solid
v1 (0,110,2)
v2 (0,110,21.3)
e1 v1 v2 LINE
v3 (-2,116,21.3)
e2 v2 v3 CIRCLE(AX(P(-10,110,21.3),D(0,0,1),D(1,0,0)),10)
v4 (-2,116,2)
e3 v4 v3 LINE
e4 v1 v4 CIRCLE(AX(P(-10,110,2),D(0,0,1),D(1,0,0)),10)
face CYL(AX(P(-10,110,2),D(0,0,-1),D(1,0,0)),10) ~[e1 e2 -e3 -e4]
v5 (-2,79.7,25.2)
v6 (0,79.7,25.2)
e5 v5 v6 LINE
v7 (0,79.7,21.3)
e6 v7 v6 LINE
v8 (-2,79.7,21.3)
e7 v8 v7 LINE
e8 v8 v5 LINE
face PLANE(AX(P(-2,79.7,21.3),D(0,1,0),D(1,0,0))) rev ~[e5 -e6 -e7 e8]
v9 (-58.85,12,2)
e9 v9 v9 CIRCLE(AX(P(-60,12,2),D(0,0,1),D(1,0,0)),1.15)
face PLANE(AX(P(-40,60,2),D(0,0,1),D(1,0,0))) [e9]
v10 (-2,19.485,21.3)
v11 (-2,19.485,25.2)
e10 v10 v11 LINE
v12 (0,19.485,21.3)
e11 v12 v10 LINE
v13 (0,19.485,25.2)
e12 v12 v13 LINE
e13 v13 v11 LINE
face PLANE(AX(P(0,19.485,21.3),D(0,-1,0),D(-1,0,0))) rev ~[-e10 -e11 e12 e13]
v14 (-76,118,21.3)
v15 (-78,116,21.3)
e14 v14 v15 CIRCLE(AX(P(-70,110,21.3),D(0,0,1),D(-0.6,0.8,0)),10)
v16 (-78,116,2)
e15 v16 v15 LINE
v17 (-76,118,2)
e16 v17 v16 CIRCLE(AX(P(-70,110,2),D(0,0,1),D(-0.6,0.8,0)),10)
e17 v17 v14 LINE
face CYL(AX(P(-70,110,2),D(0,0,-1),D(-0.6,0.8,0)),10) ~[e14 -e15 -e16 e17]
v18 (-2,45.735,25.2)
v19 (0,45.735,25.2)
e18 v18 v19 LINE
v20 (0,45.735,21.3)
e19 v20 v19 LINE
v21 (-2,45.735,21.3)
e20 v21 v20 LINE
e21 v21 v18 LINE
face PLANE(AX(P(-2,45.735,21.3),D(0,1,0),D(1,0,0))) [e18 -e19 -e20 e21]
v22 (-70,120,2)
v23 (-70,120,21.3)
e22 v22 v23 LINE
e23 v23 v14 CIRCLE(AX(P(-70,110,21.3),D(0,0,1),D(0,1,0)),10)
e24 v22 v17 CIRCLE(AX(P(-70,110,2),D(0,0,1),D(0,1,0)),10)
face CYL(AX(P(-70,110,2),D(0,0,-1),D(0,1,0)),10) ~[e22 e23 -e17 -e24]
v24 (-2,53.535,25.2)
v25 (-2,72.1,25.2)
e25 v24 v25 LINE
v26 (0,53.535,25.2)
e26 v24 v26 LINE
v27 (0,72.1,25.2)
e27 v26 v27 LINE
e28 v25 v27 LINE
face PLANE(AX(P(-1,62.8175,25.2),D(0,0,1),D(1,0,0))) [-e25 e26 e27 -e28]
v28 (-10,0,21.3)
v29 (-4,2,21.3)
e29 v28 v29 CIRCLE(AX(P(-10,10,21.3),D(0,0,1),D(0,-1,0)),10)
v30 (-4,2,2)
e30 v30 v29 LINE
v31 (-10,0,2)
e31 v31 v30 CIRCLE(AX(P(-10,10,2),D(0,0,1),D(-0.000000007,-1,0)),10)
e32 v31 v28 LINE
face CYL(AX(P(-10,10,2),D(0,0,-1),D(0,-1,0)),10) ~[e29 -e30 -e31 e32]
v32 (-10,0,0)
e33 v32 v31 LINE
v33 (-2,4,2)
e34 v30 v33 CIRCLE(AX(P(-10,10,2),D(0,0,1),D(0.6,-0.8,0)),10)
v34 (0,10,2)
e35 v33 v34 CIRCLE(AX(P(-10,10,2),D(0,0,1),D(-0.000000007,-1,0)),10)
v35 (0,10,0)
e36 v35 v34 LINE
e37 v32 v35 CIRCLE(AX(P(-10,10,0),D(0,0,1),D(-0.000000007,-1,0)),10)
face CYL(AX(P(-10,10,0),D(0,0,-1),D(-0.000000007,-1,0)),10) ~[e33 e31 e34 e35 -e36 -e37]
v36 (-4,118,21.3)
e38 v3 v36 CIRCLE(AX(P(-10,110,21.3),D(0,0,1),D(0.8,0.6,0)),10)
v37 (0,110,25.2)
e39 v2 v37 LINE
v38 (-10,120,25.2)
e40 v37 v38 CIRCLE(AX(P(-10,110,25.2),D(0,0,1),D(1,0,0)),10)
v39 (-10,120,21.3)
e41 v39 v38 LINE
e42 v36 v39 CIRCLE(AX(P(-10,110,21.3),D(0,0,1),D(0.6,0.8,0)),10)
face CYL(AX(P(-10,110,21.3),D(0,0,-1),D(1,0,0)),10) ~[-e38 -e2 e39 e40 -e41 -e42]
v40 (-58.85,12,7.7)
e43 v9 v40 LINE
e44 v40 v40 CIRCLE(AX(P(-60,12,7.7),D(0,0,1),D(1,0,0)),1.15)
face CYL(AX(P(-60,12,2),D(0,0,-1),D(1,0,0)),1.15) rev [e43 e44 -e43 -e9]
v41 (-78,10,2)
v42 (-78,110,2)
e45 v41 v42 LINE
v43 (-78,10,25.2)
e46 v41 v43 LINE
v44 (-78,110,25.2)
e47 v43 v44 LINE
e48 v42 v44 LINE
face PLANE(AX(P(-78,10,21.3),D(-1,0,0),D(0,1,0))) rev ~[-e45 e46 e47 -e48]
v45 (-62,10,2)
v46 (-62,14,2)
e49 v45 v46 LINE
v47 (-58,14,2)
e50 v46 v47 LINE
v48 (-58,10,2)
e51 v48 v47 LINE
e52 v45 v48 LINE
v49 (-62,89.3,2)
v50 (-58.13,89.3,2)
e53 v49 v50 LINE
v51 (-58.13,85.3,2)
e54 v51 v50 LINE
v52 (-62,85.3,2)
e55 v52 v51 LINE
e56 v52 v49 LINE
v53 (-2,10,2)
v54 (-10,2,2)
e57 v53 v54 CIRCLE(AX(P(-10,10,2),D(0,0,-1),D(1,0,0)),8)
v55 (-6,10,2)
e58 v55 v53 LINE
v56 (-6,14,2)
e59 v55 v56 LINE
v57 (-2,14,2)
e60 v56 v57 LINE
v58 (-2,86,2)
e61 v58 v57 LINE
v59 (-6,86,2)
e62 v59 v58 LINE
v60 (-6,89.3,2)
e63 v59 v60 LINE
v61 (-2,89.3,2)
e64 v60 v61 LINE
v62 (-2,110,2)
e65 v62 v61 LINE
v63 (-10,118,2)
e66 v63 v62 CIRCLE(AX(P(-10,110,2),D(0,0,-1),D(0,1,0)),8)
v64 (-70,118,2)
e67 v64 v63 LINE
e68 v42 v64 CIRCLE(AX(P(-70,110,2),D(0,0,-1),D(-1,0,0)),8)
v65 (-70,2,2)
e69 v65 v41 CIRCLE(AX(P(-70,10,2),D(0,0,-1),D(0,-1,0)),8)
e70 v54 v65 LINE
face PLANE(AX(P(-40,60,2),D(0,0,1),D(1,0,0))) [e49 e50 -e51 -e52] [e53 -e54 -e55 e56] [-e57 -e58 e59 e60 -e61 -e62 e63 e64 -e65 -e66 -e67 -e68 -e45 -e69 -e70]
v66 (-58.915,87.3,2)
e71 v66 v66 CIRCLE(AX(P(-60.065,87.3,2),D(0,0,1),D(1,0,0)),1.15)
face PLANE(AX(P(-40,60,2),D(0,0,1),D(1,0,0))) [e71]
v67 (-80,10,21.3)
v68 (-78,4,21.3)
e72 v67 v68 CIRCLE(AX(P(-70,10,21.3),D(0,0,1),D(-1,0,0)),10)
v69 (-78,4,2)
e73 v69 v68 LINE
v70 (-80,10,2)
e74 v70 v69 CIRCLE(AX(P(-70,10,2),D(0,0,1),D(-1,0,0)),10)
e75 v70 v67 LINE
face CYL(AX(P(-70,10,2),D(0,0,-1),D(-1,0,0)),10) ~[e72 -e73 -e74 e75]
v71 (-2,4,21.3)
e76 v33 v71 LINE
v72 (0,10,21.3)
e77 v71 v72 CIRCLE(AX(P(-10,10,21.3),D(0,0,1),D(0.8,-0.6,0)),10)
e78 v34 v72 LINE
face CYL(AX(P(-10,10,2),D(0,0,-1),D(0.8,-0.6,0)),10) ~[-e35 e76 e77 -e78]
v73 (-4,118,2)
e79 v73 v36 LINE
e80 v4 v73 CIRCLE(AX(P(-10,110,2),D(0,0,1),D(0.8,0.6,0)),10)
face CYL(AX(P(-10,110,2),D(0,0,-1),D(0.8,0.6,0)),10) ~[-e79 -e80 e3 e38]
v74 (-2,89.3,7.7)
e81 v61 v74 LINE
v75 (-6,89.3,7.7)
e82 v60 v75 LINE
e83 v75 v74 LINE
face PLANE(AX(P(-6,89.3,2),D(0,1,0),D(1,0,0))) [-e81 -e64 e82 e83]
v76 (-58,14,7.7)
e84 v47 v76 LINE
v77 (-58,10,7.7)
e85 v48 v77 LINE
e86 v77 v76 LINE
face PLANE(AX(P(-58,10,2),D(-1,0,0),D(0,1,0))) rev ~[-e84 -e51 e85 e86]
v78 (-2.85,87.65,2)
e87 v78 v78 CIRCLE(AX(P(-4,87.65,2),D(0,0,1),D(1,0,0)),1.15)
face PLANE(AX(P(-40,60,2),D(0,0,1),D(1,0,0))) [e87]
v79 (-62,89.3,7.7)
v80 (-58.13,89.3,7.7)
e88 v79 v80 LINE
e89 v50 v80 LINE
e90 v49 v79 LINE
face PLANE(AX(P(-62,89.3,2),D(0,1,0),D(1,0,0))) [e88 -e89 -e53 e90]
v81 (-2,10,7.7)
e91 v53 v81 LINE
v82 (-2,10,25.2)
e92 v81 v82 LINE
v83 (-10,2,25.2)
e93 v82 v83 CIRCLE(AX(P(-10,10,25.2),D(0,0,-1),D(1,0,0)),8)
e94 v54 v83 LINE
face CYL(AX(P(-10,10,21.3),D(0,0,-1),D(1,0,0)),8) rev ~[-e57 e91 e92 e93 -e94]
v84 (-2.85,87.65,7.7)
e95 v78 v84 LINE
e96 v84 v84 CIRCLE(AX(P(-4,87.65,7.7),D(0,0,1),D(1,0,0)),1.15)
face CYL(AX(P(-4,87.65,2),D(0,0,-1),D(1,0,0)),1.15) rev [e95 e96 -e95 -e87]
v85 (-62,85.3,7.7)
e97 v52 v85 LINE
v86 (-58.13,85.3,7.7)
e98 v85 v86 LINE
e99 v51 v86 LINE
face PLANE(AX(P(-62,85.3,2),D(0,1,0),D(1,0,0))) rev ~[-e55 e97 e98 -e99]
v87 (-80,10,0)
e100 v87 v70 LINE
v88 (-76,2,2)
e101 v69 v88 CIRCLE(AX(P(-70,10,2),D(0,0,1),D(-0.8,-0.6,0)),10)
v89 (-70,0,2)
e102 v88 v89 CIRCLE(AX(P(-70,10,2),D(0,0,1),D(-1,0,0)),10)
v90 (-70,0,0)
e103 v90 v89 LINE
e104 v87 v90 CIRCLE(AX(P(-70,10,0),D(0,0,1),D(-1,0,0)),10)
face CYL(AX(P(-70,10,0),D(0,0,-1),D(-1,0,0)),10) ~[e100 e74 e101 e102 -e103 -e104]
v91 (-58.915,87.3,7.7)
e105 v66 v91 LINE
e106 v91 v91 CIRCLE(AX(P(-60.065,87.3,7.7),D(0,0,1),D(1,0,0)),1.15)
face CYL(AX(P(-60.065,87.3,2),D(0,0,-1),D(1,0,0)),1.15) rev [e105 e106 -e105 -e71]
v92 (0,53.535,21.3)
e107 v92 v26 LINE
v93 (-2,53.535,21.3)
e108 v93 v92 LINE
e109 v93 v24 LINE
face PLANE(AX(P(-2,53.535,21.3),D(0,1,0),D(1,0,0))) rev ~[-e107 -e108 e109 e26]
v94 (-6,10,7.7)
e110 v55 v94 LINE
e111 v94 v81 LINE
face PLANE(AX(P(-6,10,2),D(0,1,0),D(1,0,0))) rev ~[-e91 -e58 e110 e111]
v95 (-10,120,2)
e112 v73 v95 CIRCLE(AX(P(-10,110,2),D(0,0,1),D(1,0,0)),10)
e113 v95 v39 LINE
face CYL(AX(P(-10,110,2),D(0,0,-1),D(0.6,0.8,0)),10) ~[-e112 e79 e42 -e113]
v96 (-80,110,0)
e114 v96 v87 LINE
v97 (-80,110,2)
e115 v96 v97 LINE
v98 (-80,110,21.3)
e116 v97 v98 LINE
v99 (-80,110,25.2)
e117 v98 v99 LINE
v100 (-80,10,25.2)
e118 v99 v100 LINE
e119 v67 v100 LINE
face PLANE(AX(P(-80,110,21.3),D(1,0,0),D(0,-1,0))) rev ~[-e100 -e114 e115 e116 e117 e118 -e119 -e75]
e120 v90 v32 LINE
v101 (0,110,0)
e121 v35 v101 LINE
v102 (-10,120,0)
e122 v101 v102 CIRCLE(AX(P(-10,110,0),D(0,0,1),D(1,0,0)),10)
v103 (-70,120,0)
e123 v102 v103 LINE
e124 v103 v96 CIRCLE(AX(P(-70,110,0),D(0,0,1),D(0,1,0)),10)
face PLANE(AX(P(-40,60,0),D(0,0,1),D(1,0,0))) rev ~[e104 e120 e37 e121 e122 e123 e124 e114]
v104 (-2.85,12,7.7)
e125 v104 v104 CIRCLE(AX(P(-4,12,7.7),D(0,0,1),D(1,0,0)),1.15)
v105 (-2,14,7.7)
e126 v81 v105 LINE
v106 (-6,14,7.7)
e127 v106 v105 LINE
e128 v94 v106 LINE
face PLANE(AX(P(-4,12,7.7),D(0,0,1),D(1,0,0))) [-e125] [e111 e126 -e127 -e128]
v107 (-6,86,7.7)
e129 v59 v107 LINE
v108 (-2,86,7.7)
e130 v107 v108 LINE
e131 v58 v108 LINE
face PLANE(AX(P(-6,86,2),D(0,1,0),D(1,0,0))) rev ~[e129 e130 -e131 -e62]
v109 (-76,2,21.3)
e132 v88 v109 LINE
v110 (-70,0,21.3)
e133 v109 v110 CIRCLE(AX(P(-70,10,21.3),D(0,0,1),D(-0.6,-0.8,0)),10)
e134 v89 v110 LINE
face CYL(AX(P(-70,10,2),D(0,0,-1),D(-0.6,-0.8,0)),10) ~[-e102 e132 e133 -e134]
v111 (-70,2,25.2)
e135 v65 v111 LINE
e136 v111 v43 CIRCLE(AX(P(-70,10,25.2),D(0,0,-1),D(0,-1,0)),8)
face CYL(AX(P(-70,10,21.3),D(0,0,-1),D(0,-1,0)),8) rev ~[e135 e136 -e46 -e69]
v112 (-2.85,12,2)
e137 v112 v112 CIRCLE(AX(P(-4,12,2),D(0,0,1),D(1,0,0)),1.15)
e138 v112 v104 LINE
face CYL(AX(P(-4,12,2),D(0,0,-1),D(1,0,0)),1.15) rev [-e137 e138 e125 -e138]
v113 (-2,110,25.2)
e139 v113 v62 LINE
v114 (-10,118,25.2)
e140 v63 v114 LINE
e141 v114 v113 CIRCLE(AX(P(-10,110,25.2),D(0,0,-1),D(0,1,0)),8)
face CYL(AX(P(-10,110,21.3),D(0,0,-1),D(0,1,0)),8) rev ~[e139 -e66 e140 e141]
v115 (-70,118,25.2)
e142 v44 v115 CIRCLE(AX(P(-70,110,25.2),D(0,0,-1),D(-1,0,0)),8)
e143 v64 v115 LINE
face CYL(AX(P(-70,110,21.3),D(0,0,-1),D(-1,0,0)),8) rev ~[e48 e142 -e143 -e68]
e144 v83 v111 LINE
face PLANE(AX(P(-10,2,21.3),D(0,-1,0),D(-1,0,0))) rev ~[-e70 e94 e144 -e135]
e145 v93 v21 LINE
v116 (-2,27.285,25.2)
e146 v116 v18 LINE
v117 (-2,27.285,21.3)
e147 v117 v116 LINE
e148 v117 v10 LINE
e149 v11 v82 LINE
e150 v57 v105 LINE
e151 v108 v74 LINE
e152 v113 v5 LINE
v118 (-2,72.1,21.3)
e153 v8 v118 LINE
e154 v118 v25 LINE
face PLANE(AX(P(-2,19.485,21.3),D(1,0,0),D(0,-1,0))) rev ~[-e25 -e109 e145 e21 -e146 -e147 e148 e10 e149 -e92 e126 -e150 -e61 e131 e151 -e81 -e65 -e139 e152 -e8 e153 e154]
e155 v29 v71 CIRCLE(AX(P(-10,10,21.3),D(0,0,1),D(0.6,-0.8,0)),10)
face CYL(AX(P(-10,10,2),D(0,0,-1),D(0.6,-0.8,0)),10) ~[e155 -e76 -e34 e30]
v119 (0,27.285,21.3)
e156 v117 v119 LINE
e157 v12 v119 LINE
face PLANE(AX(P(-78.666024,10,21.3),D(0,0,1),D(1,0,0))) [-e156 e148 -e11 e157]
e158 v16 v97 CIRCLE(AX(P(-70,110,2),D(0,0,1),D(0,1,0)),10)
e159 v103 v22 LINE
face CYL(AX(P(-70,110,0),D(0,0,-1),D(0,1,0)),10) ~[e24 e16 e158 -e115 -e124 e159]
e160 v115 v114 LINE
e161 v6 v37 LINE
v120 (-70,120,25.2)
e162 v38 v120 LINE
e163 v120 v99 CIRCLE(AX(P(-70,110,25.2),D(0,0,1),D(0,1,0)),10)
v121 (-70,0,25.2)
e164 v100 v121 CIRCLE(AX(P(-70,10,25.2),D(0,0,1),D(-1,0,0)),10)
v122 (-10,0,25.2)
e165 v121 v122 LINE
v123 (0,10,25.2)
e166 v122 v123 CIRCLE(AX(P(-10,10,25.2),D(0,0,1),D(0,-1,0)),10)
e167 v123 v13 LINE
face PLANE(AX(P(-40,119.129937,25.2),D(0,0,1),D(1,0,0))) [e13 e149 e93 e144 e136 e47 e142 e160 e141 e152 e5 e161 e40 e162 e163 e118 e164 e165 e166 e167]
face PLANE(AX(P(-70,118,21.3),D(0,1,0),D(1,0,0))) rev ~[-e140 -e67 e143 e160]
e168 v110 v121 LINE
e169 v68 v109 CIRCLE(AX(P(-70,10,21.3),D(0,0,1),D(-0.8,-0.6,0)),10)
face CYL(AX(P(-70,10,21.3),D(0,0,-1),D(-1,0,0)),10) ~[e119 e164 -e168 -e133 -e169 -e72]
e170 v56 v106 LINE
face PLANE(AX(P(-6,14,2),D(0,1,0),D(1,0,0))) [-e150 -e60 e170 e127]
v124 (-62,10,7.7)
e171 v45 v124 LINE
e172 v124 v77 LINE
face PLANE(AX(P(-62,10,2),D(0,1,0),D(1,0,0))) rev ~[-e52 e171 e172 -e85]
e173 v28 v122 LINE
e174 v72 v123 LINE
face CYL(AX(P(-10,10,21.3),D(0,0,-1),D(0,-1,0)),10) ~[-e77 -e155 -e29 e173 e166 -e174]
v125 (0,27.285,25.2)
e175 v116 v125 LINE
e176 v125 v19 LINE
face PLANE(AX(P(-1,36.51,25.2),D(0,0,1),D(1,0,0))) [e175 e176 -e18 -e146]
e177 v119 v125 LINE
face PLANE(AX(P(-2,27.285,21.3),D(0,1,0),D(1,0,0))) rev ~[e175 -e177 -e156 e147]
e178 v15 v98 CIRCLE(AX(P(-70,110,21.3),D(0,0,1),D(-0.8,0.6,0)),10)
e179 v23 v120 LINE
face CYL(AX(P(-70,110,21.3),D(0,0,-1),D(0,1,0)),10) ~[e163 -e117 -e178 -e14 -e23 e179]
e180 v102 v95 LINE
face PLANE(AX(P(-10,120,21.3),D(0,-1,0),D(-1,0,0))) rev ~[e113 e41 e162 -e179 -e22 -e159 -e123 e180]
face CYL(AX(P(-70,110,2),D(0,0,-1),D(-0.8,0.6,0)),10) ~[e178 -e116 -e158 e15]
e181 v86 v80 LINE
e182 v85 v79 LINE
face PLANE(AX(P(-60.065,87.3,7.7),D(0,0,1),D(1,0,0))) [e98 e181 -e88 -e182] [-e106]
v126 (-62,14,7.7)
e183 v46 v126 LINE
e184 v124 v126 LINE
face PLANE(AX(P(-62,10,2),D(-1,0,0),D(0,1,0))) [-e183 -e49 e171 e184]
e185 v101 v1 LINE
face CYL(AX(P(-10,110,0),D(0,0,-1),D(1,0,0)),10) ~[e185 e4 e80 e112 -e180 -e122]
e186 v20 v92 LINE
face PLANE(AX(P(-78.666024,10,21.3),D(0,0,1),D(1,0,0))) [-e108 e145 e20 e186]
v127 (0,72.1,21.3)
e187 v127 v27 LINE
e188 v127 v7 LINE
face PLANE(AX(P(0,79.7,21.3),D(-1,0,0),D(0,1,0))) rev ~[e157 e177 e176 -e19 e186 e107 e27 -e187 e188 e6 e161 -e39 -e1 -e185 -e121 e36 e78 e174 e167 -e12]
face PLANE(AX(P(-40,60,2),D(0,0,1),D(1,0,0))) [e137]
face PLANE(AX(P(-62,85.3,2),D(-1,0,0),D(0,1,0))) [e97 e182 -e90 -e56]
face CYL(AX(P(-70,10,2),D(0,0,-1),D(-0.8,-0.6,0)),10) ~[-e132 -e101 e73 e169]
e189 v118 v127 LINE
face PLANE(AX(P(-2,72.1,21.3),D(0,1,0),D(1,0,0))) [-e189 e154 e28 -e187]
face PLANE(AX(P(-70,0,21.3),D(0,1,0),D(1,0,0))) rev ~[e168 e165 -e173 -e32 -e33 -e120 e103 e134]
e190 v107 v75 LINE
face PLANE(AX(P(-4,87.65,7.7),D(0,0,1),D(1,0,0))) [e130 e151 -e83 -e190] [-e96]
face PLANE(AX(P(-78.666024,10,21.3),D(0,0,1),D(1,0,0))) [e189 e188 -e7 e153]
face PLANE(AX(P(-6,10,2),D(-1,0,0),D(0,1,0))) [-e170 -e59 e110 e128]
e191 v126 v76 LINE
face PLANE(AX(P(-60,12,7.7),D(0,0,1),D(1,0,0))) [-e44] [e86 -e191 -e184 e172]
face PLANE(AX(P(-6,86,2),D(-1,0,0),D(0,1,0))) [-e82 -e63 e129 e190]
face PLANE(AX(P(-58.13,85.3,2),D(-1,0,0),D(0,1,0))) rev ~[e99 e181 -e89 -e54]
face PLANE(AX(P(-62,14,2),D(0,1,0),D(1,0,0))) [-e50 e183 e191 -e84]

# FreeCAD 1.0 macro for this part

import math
import FreeCAD as App
import Part
import Sketcher
from FreeCAD import Vector

doc = App.newDocument("Part")
body = doc.addObject("PartDesign::Body", "Body")

sketch1 = doc.addObject("Sketcher::SketchObject", "Sketch")
body.addObject(sketch1)
sketch1.AttachmentSupport = (doc.XY_Plane, [""])
sketch1.MapMode = "FlatFace"
sketch1.addGeometry([
    Part.LineSegment(Vector(-70, 0, 0), Vector(-10, 0, 0)),
    Part.ArcOfCircle(Part.Circle(Vector(-10, 10, 0), Vector(0, 0, 1), 10), math.radians(-90), math.radians(0)),
    Part.LineSegment(Vector(0, 10, 0), Vector(0, 110, 0)),
    Part.ArcOfCircle(Part.Circle(Vector(-10, 110, 0), Vector(0, 0, 1), 10), math.radians(0), math.radians(90)),
    Part.LineSegment(Vector(-10, 120, 0), Vector(-70, 120, 0)),
    Part.ArcOfCircle(Part.Circle(Vector(-70, 110, 0), Vector(0, 0, 1), 10), math.radians(90), math.radians(180)),
    Part.LineSegment(Vector(-80, 110, 0), Vector(-80, 10, 0)),
    Part.ArcOfCircle(Part.Circle(Vector(-70, 10, 0), Vector(0, 0, 1), 10), math.radians(180), math.radians(270)),
], False)
sketch1.addConstraint([
    Sketcher.Constraint("Tangent", 0, 2, 1, 1),
    Sketcher.Constraint("Tangent", 1, 2, 2, 1),
    Sketcher.Constraint("Tangent", 2, 2, 3, 1),
    Sketcher.Constraint("Tangent", 3, 2, 4, 1),
    Sketcher.Constraint("Tangent", 4, 2, 5, 1),
    Sketcher.Constraint("Tangent", 5, 2, 6, 1),
    Sketcher.Constraint("Tangent", 6, 2, 7, 1),
    Sketcher.Constraint("Tangent", 7, 2, 0, 1),
    Sketcher.Constraint("Horizontal", 0),
    Sketcher.Constraint("Vertical", 2),
    Sketcher.Constraint("Horizontal", 4),
    Sketcher.Constraint("Vertical", 6),
    Sketcher.Constraint("Equal", 1, 3),
    Sketcher.Constraint("Equal", 3, 5),
    Sketcher.Constraint("Equal", 5, 7),
    Sketcher.Constraint("PointOnObject", 0, 2, -1),
    Sketcher.Constraint("PointOnObject", 1, 2, -2),
    Sketcher.Constraint("Radius", 1, 10.0),
    Sketcher.Constraint("DistanceX", 0, 1, 0, 2, 60.0),
    Sketcher.Constraint("DistanceY", 2, 1, 2, 2, 100.0),
])
pad1 = doc.addObject("PartDesign::Pad", "Pad")
body.addObject(pad1)
pad1.Profile = sketch1
pad1.Length = 2

sketch2 = doc.addObject("Sketcher::SketchObject", "Sketch001")
body.addObject(sketch2)
sketch2.AttachmentSupport = (doc.XY_Plane, [""])
sketch2.MapMode = "FlatFace"
sketch2.AttachmentOffset = App.Placement(Vector(0, 0, 2), App.Rotation())
sketch2.addGeometry([
    Part.ArcOfCircle(Part.Circle(Vector(-70, 10, 0), Vector(0, 0, 1), 10), math.radians(180), math.radians(217)),
    Part.ArcOfCircle(Part.Circle(Vector(-70, 10, 0), Vector(0, 0, 1), 10), math.radians(-143.13), math.radians(-126.87)),
    Part.ArcOfCircle(Part.Circle(Vector(-70, 10, 0), Vector(0, 0, 1), 10), math.radians(-127), math.radians(-90)),
    Part.LineSegment(Vector(-70, 0, 0), Vector(-10, 0, 0)),
    Part.ArcOfCircle(Part.Circle(Vector(-10, 10, 0), Vector(0, 0, 1), 10), math.radians(-90), math.radians(-53)),
    Part.ArcOfCircle(Part.Circle(Vector(-10, 10, 0), Vector(0, 0, 1), 10), math.radians(-53.13), math.radians(-36.87)),
    Part.ArcOfCircle(Part.Circle(Vector(-10, 10, 0), Vector(0, 0, 1), 10), math.radians(-37), math.radians(0)),
    Part.LineSegment(Vector(0, 10, 0), Vector(0, 110, 0)),
    Part.ArcOfCircle(Part.Circle(Vector(-10, 110, 0), Vector(0, 0, 1), 10), math.radians(0), math.radians(37)),
    Part.ArcOfCircle(Part.Circle(Vector(-10, 110, 0), Vector(0, 0, 1), 10), math.radians(36.87), math.radians(53.13)),
    Part.ArcOfCircle(Part.Circle(Vector(-10, 110, 0), Vector(0, 0, 1), 10), math.radians(53), math.radians(90)),
    Part.LineSegment(Vector(-10, 120, 0), Vector(-70, 120, 0)),
    Part.ArcOfCircle(Part.Circle(Vector(-70, 110, 0), Vector(0, 0, 1), 10), math.radians(90), math.radians(127)),
    Part.ArcOfCircle(Part.Circle(Vector(-70, 110, 0), Vector(0, 0, 1), 10), math.radians(126.87), math.radians(143.13)),
    Part.ArcOfCircle(Part.Circle(Vector(-70, 110, 0), Vector(0, 0, 1), 10), math.radians(143), math.radians(180)),
    Part.LineSegment(Vector(-80, 110, 0), Vector(-80, 10, 0)),
    Part.ArcOfCircle(Part.Circle(Vector(-70, 10, 0), Vector(0, 0, 1), 8), math.radians(-180), math.radians(-90)),
    Part.LineSegment(Vector(-78, 10, 0), Vector(-78, 110, 0)),
    Part.ArcOfCircle(Part.Circle(Vector(-70, 110, 0), Vector(0, 0, 1), 8), math.radians(90), math.radians(180)),
    Part.LineSegment(Vector(-70, 118, 0), Vector(-10, 118, 0)),
    Part.ArcOfCircle(Part.Circle(Vector(-10, 110, 0), Vector(0, 0, 1), 8), math.radians(0), math.radians(90)),
    Part.LineSegment(Vector(-2, 110, 0), Vector(-2, 10, 0)),
    Part.ArcOfCircle(Part.Circle(Vector(-10, 10, 0), Vector(0, 0, 1), 8), math.radians(-90), math.radians(0)),
    Part.LineSegment(Vector(-10, 2, 0), Vector(-70, 2, 0)),
], False)
sketch2.addConstraint([
    Sketcher.Constraint("Tangent", 0, 2, 1, 1),
    Sketcher.Constraint("Tangent", 1, 2, 2, 1),
    Sketcher.Constraint("Tangent", 2, 2, 3, 1),
    Sketcher.Constraint("Tangent", 3, 2, 4, 1),
    Sketcher.Constraint("Tangent", 4, 2, 5, 1),
    Sketcher.Constraint("Tangent", 5, 2, 6, 1),
    Sketcher.Constraint("Tangent", 6, 2, 7, 1),
    Sketcher.Constraint("Tangent", 7, 2, 8, 1),
    Sketcher.Constraint("Tangent", 8, 2, 9, 1),
    Sketcher.Constraint("Tangent", 9, 2, 10, 1),
    Sketcher.Constraint("Tangent", 10, 2, 11, 1),
    Sketcher.Constraint("Tangent", 11, 2, 12, 1),
    Sketcher.Constraint("Tangent", 12, 2, 13, 1),
    Sketcher.Constraint("Tangent", 13, 2, 14, 1),
    Sketcher.Constraint("Tangent", 14, 2, 15, 1),
    Sketcher.Constraint("Tangent", 15, 2, 0, 1),
    Sketcher.Constraint("Tangent", 16, 1, 17, 1),
    Sketcher.Constraint("Tangent", 17, 2, 18, 2),
    Sketcher.Constraint("Tangent", 18, 1, 19, 1),
    Sketcher.Constraint("Tangent", 19, 2, 20, 2),
    Sketcher.Constraint("Tangent", 20, 1, 21, 1),
    Sketcher.Constraint("Tangent", 21, 2, 22, 2),
    Sketcher.Constraint("Tangent", 22, 1, 23, 1),
    Sketcher.Constraint("Tangent", 23, 2, 16, 2),
    Sketcher.Constraint("Horizontal", 3),
    Sketcher.Constraint("Vertical", 7),
    Sketcher.Constraint("Horizontal", 11),
    Sketcher.Constraint("Vertical", 15),
    Sketcher.Constraint("Vertical", 17),
    Sketcher.Constraint("Horizontal", 19),
    Sketcher.Constraint("Vertical", 21),
    Sketcher.Constraint("Horizontal", 23),
    Sketcher.Constraint("Coincident", 2, 3, 0, 3),
    Sketcher.Constraint("Coincident", 6, 3, 4, 3),
    Sketcher.Constraint("Coincident", 10, 3, 8, 3),
    Sketcher.Constraint("Coincident", 14, 3, 12, 3),
    Sketcher.Constraint("Coincident", 16, 3, 0, 3),
    Sketcher.Constraint("Coincident", 18, 3, 12, 3),
    Sketcher.Constraint("Coincident", 20, 3, 8, 3),
    Sketcher.Constraint("Equal", 2, 4),
    Sketcher.Constraint("Equal", 6, 8),
    Sketcher.Constraint("Equal", 10, 12),
    Sketcher.Constraint("Equal", 20, 22),
    Sketcher.Constraint("PointOnObject", 2, 2, -1),
    Sketcher.Constraint("PointOnObject", 6, 2, -2),
    Sketcher.Constraint("Horizontal", 1, 2, 4, 2),
    Sketcher.Constraint("Horizontal", 0, 2, 5, 2),
    Sketcher.Constraint("Horizontal", 9, 2, 12, 2),
    Sketcher.Constraint("Horizontal", 8, 2, 13, 2),
    Sketcher.Constraint("Horizontal", 12, 2, 18, 1),
    Sketcher.Constraint("Horizontal", 4, 2, 22, 1),
    Sketcher.Constraint("Vertical", 5, 2, 8, 2),
    Sketcher.Constraint("Vertical", 13, 2, 16, 1),
    Sketcher.Constraint("Radius", 0, 10.0),
    Sketcher.Constraint("Radius", 16, 8.0),
    Sketcher.Constraint("DistanceX", 3, 1, 3, 2, 60.0),
    Sketcher.Constraint("DistanceY", 7, 1, 7, 2, 100.0),
])
pad2 = doc.addObject("PartDesign::Pad", "Pad001")
body.addObject(pad2)
pad2.Profile = sketch2
pad2.Length = 19.3

sketch3 = doc.addObject("Sketcher::SketchObject", "Sketch002")
body.addObject(sketch3)
sketch3.AttachmentSupport = (doc.XY_Plane, [""])
sketch3.MapMode = "FlatFace"
sketch3.AttachmentOffset = App.Placement(Vector(0, 0, 21.3), App.Rotation())
sketch3.addGeometry([
    Part.LineSegment(Vector(-10, 120, 0), Vector(-70, 120, 0)),
    Part.ArcOfCircle(Part.Circle(Vector(-70, 110, 0), Vector(0, 0, 1), 10), math.radians(90), math.radians(180)),
    Part.LineSegment(Vector(-80, 110, 0), Vector(-80, 10, 0)),
    Part.ArcOfCircle(Part.Circle(Vector(-70, 10, 0), Vector(0, 0, 1), 10), math.radians(180), math.radians(270)),
    Part.LineSegment(Vector(-70, 0, 0), Vector(-10, 0, 0)),
    Part.ArcOfCircle(Part.Circle(Vector(-10, 10, 0), Vector(0, 0, 1), 10), math.radians(-90), math.radians(0)),
    Part.LineSegment(Vector(0, 10, 0), Vector(0, 19.5, 0)),
    Part.LineSegment(Vector(0, 19.5, 0), Vector(-2, 19.5, 0)),
    Part.LineSegment(Vector(-2, 19.5, 0), Vector(-2, 10, 0)),
    Part.ArcOfCircle(Part.Circle(Vector(-10, 10, 0), Vector(0, 0, 1), 8), math.radians(-90), math.radians(0)),
    Part.LineSegment(Vector(-10, 2, 0), Vector(-70, 2, 0)),
    Part.ArcOfCircle(Part.Circle(Vector(-70, 10, 0), Vector(0, 0, 1), 8), math.radians(-180), math.radians(-90)),
    Part.LineSegment(Vector(-78, 10, 0), Vector(-78, 110, 0)),
    Part.ArcOfCircle(Part.Circle(Vector(-70, 110, 0), Vector(0, 0, 1), 8), math.radians(90), math.radians(180)),
    Part.LineSegment(Vector(-70, 118, 0), Vector(-10, 118, 0)),
    Part.ArcOfCircle(Part.Circle(Vector(-10, 110, 0), Vector(0, 0, 1), 8), math.radians(0), math.radians(90)),
    Part.LineSegment(Vector(-2, 110, 0), Vector(-2, 79.7, 0)),
    Part.LineSegment(Vector(-2, 79.7, 0), Vector(0, 79.7, 0)),
    Part.LineSegment(Vector(0, 79.7, 0), Vector(0, 110, 0)),
    Part.ArcOfCircle(Part.Circle(Vector(-10, 110, 0), Vector(0, 0, 1), 10), math.radians(0), math.radians(90)),
    Part.LineSegment(Vector(-2, 72.1, 0), Vector(-2, 53.5, 0)),
    Part.LineSegment(Vector(-2, 53.5, 0), Vector(0, 53.5, 0)),
    Part.LineSegment(Vector(0, 53.5, 0), Vector(0, 72.1, 0)),
    Part.LineSegment(Vector(0, 72.1, 0), Vector(-2, 72.1, 0)),
    Part.LineSegment(Vector(-2, 45.7, 0), Vector(-2, 27.3, 0)),
    Part.LineSegment(Vector(-2, 27.3, 0), Vector(0, 27.3, 0)),
    Part.LineSegment(Vector(0, 27.3, 0), Vector(0, 45.7, 0)),
    Part.LineSegment(Vector(0, 45.7, 0), Vector(-2, 45.7, 0)),
], False)
sketch3.addConstraint([
    Sketcher.Constraint("Tangent", 0, 2, 1, 1),
    Sketcher.Constraint("Tangent", 1, 2, 2, 1),
    Sketcher.Constraint("Tangent", 2, 2, 3, 1),
    Sketcher.Constraint("Tangent", 3, 2, 4, 1),
    Sketcher.Constraint("Tangent", 4, 2, 5, 1),
    Sketcher.Constraint("Tangent", 5, 2, 6, 1),
    Sketcher.Constraint("Coincident", 6, 2, 7, 1),
    Sketcher.Constraint("Coincident", 7, 2, 8, 1),
    Sketcher.Constraint("Tangent", 8, 2, 9, 2),
    Sketcher.Constraint("Tangent", 9, 1, 10, 1),
    Sketcher.Constraint("Tangent", 10, 2, 11, 2),
    Sketcher.Constraint("Tangent", 11, 1, 12, 1),
    Sketcher.Constraint("Tangent", 12, 2, 13, 2),
    Sketcher.Constraint("Tangent", 13, 1, 14, 1),
    Sketcher.Constraint("Tangent", 14, 2, 15, 2),
    Sketcher.Constraint("Tangent", 15, 1, 16, 1),
    Sketcher.Constraint("Coincident", 16, 2, 17, 1),
    Sketcher.Constraint("Coincident", 17, 2, 18, 1),
    Sketcher.Constraint("Tangent", 18, 2, 19, 1),
    Sketcher.Constraint("Tangent", 19, 2, 0, 1),
    Sketcher.Constraint("Coincident", 20, 2, 21, 1),
    Sketcher.Constraint("Coincident", 21, 2, 22, 1),
    Sketcher.Constraint("Coincident", 22, 2, 23, 1),
    Sketcher.Constraint("Coincident", 23, 2, 20, 1),
    Sketcher.Constraint("Coincident", 24, 2, 25, 1),
    Sketcher.Constraint("Coincident", 25, 2, 26, 1),
    Sketcher.Constraint("Coincident", 26, 2, 27, 1),
    Sketcher.Constraint("Coincident", 27, 2, 24, 1),
    Sketcher.Constraint("Horizontal", 0),
    Sketcher.Constraint("Vertical", 2),
    Sketcher.Constraint("Horizontal", 4),
    Sketcher.Constraint("Vertical", 6),
    Sketcher.Constraint("Horizontal", 7),
    Sketcher.Constraint("Vertical", 8),
    Sketcher.Constraint("Horizontal", 10),
    Sketcher.Constraint("Vertical", 12),
    Sketcher.Constraint("Horizontal", 14),
    Sketcher.Constraint("Vertical", 16),
    Sketcher.Constraint("Horizontal", 17),
    Sketcher.Constraint("Vertical", 18),
    Sketcher.Constraint("Vertical", 20),
    Sketcher.Constraint("Horizontal", 21),
    Sketcher.Constraint("Vertical", 22),
    Sketcher.Constraint("Horizontal", 23),
    Sketcher.Constraint("Vertical", 24),
    Sketcher.Constraint("Horizontal", 25),
    Sketcher.Constraint("Vertical", 26),
    Sketcher.Constraint("Horizontal", 27),
    Sketcher.Constraint("Coincident", 9, 3, 5, 3),
    Sketcher.Constraint("Coincident", 11, 3, 3, 3),
    Sketcher.Constraint("Coincident", 13, 3, 1, 3),
    Sketcher.Constraint("Coincident", 19, 3, 15, 3),
    Sketcher.Constraint("Equal", 1, 3),
    Sketcher.Constraint("Equal", 3, 5),
    Sketcher.Constraint("Equal", 13, 15),
    Sketcher.Constraint("PointOnObject", 3, 2, -1),
    Sketcher.Constraint("PointOnObject", 5, 2, -2),
    Sketcher.Constraint("PointOnObject", 17, 2, -2),
    Sketcher.Constraint("PointOnObject", 21, 2, -2),
    Sketcher.Constraint("PointOnObject", 25, 2, -2),
    Sketcher.Constraint("Vertical", 16, 2, 20, 2),
    Sketcher.Constraint("Vertical", 23, 2, 24, 2),
    Sketcher.Constraint("Radius", 1, 10.0),
    Sketcher.Constraint("Radius", 9, 8.0),
    Sketcher.Constraint("DistanceX", 0, 2, 0, 1, 60.0),
    Sketcher.Constraint("DistanceY", 2, 2, 2, 1, 100.0),
    Sketcher.Constraint("DistanceY", 16, 2, 16, 1, 30.3),
    Sketcher.Constraint("DistanceY", 24, 2, 24, 1, 18.45),
    Sketcher.Constraint("DistanceY", -1, 1, 22, 2, 72.1),
    Sketcher.Constraint("DistanceY", 7, 2, 24, 2, 7.8),
    Sketcher.Constraint("DistanceY", 26, 2, 21, 2, 7.8),
    Sketcher.Constraint("DistanceY", 6, 1, 6, 2, 9.485),
])
pad3 = doc.addObject("PartDesign::Pad", "Pad002")
body.addObject(pad3)
pad3.Profile = sketch3
pad3.Length = 3.9

sketch4 = doc.addObject("Sketcher::SketchObject", "Sketch003")
body.addObject(sketch4)
sketch4.AttachmentSupport = (doc.XY_Plane, [""])
sketch4.MapMode = "FlatFace"
sketch4.AttachmentOffset = App.Placement(Vector(0, 0, 2), App.Rotation())
sketch4.addGeometry([
    Part.LineSegment(Vector(-6, 14, 0), Vector(-6, 10, 0)),
    Part.LineSegment(Vector(-6, 10, 0), Vector(-2, 10, 0)),
    Part.LineSegment(Vector(-2, 10, 0), Vector(-2, 14, 0)),
    Part.LineSegment(Vector(-2, 14, 0), Vector(-6, 14, 0)),
    Part.Circle(Vector(-4, 12, 0), Vector(0, 0, 1), 1.1),
    Part.LineSegment(Vector(-62, 14, 0), Vector(-62, 10, 0)),
    Part.LineSegment(Vector(-62, 10, 0), Vector(-58, 10, 0)),
    Part.LineSegment(Vector(-58, 10, 0), Vector(-58, 14, 0)),
    Part.LineSegment(Vector(-58, 14, 0), Vector(-62, 14, 0)),
    Part.Circle(Vector(-60, 12, 0), Vector(0, 0, 1), 1.1),
    Part.LineSegment(Vector(-62, 89.3, 0), Vector(-62, 85.3, 0)),
    Part.LineSegment(Vector(-62, 85.3, 0), Vector(-58.1, 85.3, 0)),
    Part.LineSegment(Vector(-58.1, 85.3, 0), Vector(-58.1, 89.3, 0)),
    Part.LineSegment(Vector(-58.1, 89.3, 0), Vector(-62, 89.3, 0)),
    Part.Circle(Vector(-60.1, 87.3, 0), Vector(0, 0, 1), 1.1),
    Part.LineSegment(Vector(-6, 89.3, 0), Vector(-6, 86, 0)),
    Part.LineSegment(Vector(-6, 86, 0), Vector(-2, 86, 0)),
    Part.LineSegment(Vector(-2, 86, 0), Vector(-2, 89.3, 0)),
    Part.LineSegment(Vector(-2, 89.3, 0), Vector(-6, 89.3, 0)),
    Part.Circle(Vector(-4, 87.7, 0), Vector(0, 0, 1), 1.1),
], False)
sketch4.addConstraint([
    Sketcher.Constraint("Coincident", 0, 2, 1, 1),
    Sketcher.Constraint("Coincident", 1, 2, 2, 1),
    Sketcher.Constraint("Coincident", 2, 2, 3, 1),
    Sketcher.Constraint("Coincident", 3, 2, 0, 1),
    Sketcher.Constraint("Coincident", 5, 2, 6, 1),
    Sketcher.Constraint("Coincident", 6, 2, 7, 1),
    Sketcher.Constraint("Coincident", 7, 2, 8, 1),
    Sketcher.Constraint("Coincident", 8, 2, 5, 1),
    Sketcher.Constraint("Coincident", 10, 2, 11, 1),
    Sketcher.Constraint("Coincident", 11, 2, 12, 1),
    Sketcher.Constraint("Coincident", 12, 2, 13, 1),
    Sketcher.Constraint("Coincident", 13, 2, 10, 1),
    Sketcher.Constraint("Coincident", 15, 2, 16, 1),
    Sketcher.Constraint("Coincident", 16, 2, 17, 1),
    Sketcher.Constraint("Coincident", 17, 2, 18, 1),
    Sketcher.Constraint("Coincident", 18, 2, 15, 1),
    Sketcher.Constraint("Vertical", 0),
    Sketcher.Constraint("Horizontal", 1),
    Sketcher.Constraint("Vertical", 2),
    Sketcher.Constraint("Horizontal", 3),
    Sketcher.Constraint("Vertical", 5),
    Sketcher.Constraint("Horizontal", 6),
    Sketcher.Constraint("Vertical", 7),
    Sketcher.Constraint("Horizontal", 8),
    Sketcher.Constraint("Vertical", 10),
    Sketcher.Constraint("Horizontal", 11),
    Sketcher.Constraint("Vertical", 12),
    Sketcher.Constraint("Horizontal", 13),
    Sketcher.Constraint("Vertical", 15),
    Sketcher.Constraint("Horizontal", 16),
    Sketcher.Constraint("Vertical", 17),
    Sketcher.Constraint("Horizontal", 18),
    Sketcher.Constraint("Equal", 4, 9),
    Sketcher.Constraint("Equal", 9, 14),
    Sketcher.Constraint("Equal", 14, 19),
    Sketcher.Constraint("Horizontal", 4, 3, 9, 3),
    Sketcher.Constraint("Horizontal", 1, 2, 5, 2),
    Sketcher.Constraint("Horizontal", 3, 2, 7, 2),
    Sketcher.Constraint("Horizontal", 13, 2, 17, 2),
    Sketcher.Constraint("Vertical", 4, 3, 19, 3),
    Sketcher.Constraint("Vertical", 8, 2, 10, 2),
    Sketcher.Constraint("Vertical", 3, 2, 15, 2),
    Sketcher.Constraint("Vertical", 2, 2, 16, 2),
    Sketcher.Constraint("Equal", 3, 6),
    Sketcher.Constraint("Equal", 18, 0),
    Sketcher.Constraint("Equal", 7, 10),
    Sketcher.Constraint("Diameter", 4, 2.3),
    Sketcher.Constraint("DistanceX", 1, 1, 1, 2, 4.0),
    Sketcher.Constraint("DistanceY", 15, 2, 15, 1, 3.3),
    Sketcher.Constraint("DistanceX", 4, 3, -1, 1, 4.0),
    Sketcher.Constraint("DistanceY", -1, 1, 4, 3, 12.0),
    Sketcher.Constraint("DistanceX", 9, 3, -1, 1, 60.0),
    Sketcher.Constraint("DistanceX", 0, 2, -1, 1, 6.0),
    Sketcher.Constraint("DistanceY", -1, 1, 0, 2, 10.0),
    Sketcher.Constraint("DistanceX", 5, 2, -1, 1, 62.0),
    Sketcher.Constraint("DistanceY", -1, 1, 15, 2, 86.0),
    Sketcher.Constraint("DistanceY", 10, 2, 14, 3, 2.0),
    Sketcher.Constraint("DistanceX", 11, 1, 11, 2, 3.87),
    Sketcher.Constraint("DistanceY", -1, 1, 19, 3, 87.65),
    Sketcher.Constraint("DistanceX", 14, 3, -1, 1, 60.065),
])
pad4 = doc.addObject("PartDesign::Pad", "Pad003")
body.addObject(pad4)
pad4.Profile = sketch4
pad4.Length = 5.7

doc.recompute()
